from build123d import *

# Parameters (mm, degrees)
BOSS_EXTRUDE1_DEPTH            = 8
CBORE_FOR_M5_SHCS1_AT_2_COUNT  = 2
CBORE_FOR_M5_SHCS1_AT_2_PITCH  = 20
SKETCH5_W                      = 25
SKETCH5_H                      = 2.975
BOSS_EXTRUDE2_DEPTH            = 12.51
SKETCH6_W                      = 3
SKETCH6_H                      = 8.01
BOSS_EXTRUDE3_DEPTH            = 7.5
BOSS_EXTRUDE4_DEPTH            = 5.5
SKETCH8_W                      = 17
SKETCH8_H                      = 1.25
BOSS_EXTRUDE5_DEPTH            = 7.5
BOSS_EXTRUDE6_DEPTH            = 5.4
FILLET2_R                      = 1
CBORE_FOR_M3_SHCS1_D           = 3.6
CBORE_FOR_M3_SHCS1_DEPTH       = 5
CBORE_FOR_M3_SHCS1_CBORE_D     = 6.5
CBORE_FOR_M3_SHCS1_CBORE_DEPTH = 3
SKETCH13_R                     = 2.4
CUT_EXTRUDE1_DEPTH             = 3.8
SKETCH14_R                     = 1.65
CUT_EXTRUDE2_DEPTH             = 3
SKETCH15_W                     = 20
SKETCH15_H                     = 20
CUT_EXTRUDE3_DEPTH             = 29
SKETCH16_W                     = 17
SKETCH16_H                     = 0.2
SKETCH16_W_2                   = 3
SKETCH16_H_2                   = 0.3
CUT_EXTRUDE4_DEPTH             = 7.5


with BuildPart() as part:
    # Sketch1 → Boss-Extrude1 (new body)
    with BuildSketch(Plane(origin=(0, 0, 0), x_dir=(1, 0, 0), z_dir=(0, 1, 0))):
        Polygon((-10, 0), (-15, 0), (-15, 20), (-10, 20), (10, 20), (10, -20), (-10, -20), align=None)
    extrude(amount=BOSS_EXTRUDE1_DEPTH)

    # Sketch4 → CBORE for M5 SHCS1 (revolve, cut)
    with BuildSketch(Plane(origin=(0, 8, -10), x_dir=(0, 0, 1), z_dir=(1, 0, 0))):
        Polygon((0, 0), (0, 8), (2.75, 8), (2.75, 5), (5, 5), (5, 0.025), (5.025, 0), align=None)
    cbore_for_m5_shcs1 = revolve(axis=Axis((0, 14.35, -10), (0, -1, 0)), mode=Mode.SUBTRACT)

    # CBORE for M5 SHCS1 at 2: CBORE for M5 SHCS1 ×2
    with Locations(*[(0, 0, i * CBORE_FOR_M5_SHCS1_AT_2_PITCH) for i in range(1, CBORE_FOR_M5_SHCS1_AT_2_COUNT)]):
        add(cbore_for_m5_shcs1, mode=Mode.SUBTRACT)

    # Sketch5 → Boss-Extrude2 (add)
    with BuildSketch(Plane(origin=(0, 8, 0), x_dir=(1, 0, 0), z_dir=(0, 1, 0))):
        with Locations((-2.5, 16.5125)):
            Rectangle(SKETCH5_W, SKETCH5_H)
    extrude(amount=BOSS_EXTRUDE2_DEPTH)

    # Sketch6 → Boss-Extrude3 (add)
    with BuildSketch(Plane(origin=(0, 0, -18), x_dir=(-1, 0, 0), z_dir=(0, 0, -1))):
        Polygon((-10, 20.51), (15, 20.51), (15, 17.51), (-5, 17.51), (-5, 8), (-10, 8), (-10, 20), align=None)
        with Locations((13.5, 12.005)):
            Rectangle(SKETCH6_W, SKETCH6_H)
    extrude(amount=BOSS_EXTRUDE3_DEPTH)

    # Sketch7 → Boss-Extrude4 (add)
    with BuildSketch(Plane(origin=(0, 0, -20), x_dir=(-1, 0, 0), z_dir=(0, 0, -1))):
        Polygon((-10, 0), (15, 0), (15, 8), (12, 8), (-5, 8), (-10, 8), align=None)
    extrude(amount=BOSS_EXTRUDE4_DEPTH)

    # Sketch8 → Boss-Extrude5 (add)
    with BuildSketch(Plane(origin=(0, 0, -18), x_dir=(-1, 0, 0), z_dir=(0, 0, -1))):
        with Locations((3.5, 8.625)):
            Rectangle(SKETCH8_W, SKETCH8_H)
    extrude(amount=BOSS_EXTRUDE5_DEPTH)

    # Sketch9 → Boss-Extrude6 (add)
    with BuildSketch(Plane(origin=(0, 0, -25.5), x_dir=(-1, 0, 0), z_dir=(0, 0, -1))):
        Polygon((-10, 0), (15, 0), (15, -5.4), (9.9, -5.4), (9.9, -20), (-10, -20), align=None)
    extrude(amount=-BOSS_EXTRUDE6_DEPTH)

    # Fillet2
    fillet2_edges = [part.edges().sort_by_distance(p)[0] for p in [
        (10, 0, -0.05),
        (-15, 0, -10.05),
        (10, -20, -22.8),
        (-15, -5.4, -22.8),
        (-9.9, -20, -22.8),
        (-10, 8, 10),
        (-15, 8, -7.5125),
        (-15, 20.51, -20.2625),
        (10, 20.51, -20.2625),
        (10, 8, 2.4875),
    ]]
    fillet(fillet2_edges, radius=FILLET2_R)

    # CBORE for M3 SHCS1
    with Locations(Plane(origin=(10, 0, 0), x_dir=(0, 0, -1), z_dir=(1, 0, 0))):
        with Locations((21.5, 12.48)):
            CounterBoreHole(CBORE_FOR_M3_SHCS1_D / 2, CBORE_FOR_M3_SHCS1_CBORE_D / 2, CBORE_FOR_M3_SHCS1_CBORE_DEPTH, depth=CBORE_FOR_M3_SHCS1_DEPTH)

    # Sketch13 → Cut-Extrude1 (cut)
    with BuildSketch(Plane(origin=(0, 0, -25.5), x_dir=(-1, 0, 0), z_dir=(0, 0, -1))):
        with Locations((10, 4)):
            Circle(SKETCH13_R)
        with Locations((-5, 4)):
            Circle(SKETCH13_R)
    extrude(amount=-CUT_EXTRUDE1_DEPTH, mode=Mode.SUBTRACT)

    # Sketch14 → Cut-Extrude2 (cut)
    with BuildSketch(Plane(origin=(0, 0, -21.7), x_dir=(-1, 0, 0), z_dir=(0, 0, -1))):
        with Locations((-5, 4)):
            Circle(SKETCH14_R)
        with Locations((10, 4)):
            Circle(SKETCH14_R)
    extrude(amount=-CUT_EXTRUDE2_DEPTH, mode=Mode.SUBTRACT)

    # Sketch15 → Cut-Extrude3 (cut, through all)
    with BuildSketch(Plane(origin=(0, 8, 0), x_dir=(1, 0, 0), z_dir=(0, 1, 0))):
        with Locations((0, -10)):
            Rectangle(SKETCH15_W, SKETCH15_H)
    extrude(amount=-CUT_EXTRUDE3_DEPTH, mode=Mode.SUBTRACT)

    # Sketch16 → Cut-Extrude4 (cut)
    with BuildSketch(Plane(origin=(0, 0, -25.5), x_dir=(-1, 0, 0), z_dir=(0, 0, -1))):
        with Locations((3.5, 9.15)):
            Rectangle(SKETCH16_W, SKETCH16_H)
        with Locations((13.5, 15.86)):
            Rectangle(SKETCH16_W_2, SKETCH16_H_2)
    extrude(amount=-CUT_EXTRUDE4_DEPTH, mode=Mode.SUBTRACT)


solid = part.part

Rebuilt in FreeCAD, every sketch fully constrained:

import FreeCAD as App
import Part
import Sketcher
Q = App.Units.Quantity


def edges_at(feature, points):
    """Names of the edges that pass closest to the given points."""
    edges = feature.Shape.Edges
    near = lambda p: min(range(len(edges)), key=lambda i: edges[i].distToShape(Part.Vertex(*p))[0])
    return sorted({f"Edge{near(p) + 1}" for p in points})

doc = App.newDocument("Part")
body = doc.addObject("PartDesign::Body", "Body")

# Sketch on XZ plane
sketch1 = body.newObject("Sketcher::SketchObject", "Sketch")
sketch1.AttachmentSupport = (doc.getObject("XZ_Plane"), [""])
sketch1.MapMode = "FlatFace"
sketch1.addGeometry([
    Part.LineSegment(App.Vector(-15, 0, 0), App.Vector(-10, 0, 0)),  # 0
    Part.LineSegment(App.Vector(-10, 0, 0), App.Vector(-10, 20, 0)),  # 1
    Part.LineSegment(App.Vector(-10, 20, 0), App.Vector(10, 20, 0)),  # 2
    Part.LineSegment(App.Vector(10, 20, 0), App.Vector(10, -20, 0)),  # 3
    Part.LineSegment(App.Vector(10, -20, 0), App.Vector(-15, -20, 0)),  # 4
    Part.LineSegment(App.Vector(-15, -20, 0), App.Vector(-15, 0, 0)),  # 5
], False)
sketch1.addConstraint([
    Sketcher.Constraint("Coincident", 0, 2, 1, 1),
    Sketcher.Constraint("Coincident", 1, 2, 2, 1),
    Sketcher.Constraint("Coincident", 2, 2, 3, 1),
    Sketcher.Constraint("Coincident", 3, 2, 4, 1),
    Sketcher.Constraint("Coincident", 4, 2, 5, 1),
    Sketcher.Constraint("Coincident", 5, 2, 0, 1),
    Sketcher.Constraint("Horizontal", 0),
    Sketcher.Constraint("Vertical", 1),
    Sketcher.Constraint("Horizontal", 2),
    Sketcher.Constraint("Vertical", 3),
    Sketcher.Constraint("Horizontal", 4),
    Sketcher.Constraint("Vertical", 5),
    Sketcher.Constraint("Symmetric", 1, 2, 3, 2, -1, 1),
    Sketcher.Constraint("PointOnObject", 0, 2, -1),
    Sketcher.Constraint("Equal", 2, 1),
    Sketcher.Constraint("DistanceX", 0, 1, 0, 2, Q("5 mm")),
    Sketcher.Constraint("DistanceX", 2, 1, 2, 2, Q("20 mm")),
])
pad1 = body.newObject("PartDesign::Pad", "Pad")
pad1.Profile = sketch1
pad1.Length = 8
pad1.Reversed = True

# Sketch on YZ plane
sketch2 = body.newObject("Sketcher::SketchObject", "Sketch001")
sketch2.AttachmentSupport = (doc.getObject("YZ_Plane"), [""])
sketch2.MapMode = "FlatFace"
sketch2.addGeometry([
    Part.LineSegment(App.Vector(0, -10, 0), App.Vector(8, -10, 0)),  # 0
    Part.LineSegment(App.Vector(8, -10, 0), App.Vector(8, -4.975, 0)),  # 1
    Part.LineSegment(App.Vector(8, -4.975, 0), App.Vector(7.975, -5, 0)),  # 2
    Part.LineSegment(App.Vector(7.975, -5, 0), App.Vector(3, -5, 0)),  # 3
    Part.LineSegment(App.Vector(3, -5, 0), App.Vector(3, -7.25, 0)),  # 4
    Part.LineSegment(App.Vector(3, -7.25, 0), App.Vector(0, -7.25, 0)),  # 5
    Part.LineSegment(App.Vector(0, -7.25, 0), App.Vector(0, -10, 0)),  # 6
], False)
sketch2.addGeometry(Part.LineSegment(App.Vector(8, -10, 0), App.Vector(0, -10, 0)), True)  # axis
sketch2.addConstraint([
    Sketcher.Constraint("Coincident", 0, 2, 1, 1),
    Sketcher.Constraint("Coincident", 1, 2, 2, 1),
    Sketcher.Constraint("Coincident", 2, 2, 3, 1),
    Sketcher.Constraint("Coincident", 3, 2, 4, 1),
    Sketcher.Constraint("Coincident", 4, 2, 5, 1),
    Sketcher.Constraint("Coincident", 5, 2, 6, 1),
    Sketcher.Constraint("Coincident", 6, 2, 0, 1),
    Sketcher.Constraint("Horizontal", 0),
    Sketcher.Constraint("Vertical", 1),
    Sketcher.Constraint("Horizontal", 3),
    Sketcher.Constraint("Vertical", 4),
    Sketcher.Constraint("Horizontal", 5),
    Sketcher.Constraint("Vertical", 6),
    Sketcher.Constraint("Horizontal", 7),
    Sketcher.Constraint("Coincident", 7, 1, 0, 2),
    Sketcher.Constraint("PointOnObject", 5, 2, -2),
    Sketcher.Constraint("PointOnObject", 7, 2, -2),
    Sketcher.Constraint("DistanceX", 0, 1, 0, 2, Q("8 mm")),
    Sketcher.Constraint("DistanceX", 5, 2, 5, 1, Q("3 mm")),
    Sketcher.Constraint("Angle", 2, Q("-135 deg")),
    Sketcher.Constraint("DistanceY", 0, 2, -1, 1, Q("10 mm")),
    Sketcher.Constraint("DistanceY", 2, 2, -1, 1, Q("5 mm")),
    Sketcher.Constraint("DistanceY", 4, 2, 4, 1, Q("2.25 mm")),
    Sketcher.Constraint("DistanceX", 3, 2, 3, 1, Q("4.975 mm")),
])
groove = body.newObject("PartDesign::Groove", "Groove")
groove.Profile = sketch2
groove.ReferenceAxis = (sketch2, ["Axis0"])
groove.Angle = 360
doc.recompute()

linearpattern = body.newObject("PartDesign::LinearPattern", "LinearPattern")
linearpattern.Originals = [groove]
linearpattern.Direction = (doc.getObject("Z_Axis"), [""])
linearpattern.Mode = "offset"
linearpattern.Offset = 20
linearpattern.Occurrences = 2
body.Tip = linearpattern

# Sketch on XZ plane
sketch3 = body.newObject("Sketcher::SketchObject", "Sketch002")
sketch3.AttachmentSupport = (doc.getObject("XZ_Plane"), [""])
sketch3.MapMode = "FlatFace"
sketch3.AttachmentOffset = App.Placement(App.Vector(0, 0, -8), App.Rotation())
sketch3.addGeometry([
    Part.LineSegment(App.Vector(-15, -18, 0), App.Vector(-15, -15.025, 0)),
    Part.LineSegment(App.Vector(-15, -15.025, 0), App.Vector(10, -15.025, 0)),
    Part.LineSegment(App.Vector(10, -15.025, 0), App.Vector(10, -18, 0)),
    Part.LineSegment(App.Vector(10, -18, 0), App.Vector(-15, -18, 0)),
], False)
sketch3.addConstraint([
    Sketcher.Constraint("Coincident", 0, 2, 1, 1),
    Sketcher.Constraint("Coincident", 1, 2, 2, 1),
    Sketcher.Constraint("Coincident", 2, 2, 3, 1),
    Sketcher.Constraint("Coincident", 3, 2, 0, 1),
    Sketcher.Constraint("Vertical", 0),
    Sketcher.Constraint("Horizontal", 1),
    Sketcher.Constraint("Vertical", 2),
    Sketcher.Constraint("Horizontal", 3),
    Sketcher.Constraint("DistanceX", 1, 1, 1, 2, Q("25 mm")),
    Sketcher.Constraint("DistanceX", 0, 2, -1, 1, Q("15 mm")),
    Sketcher.Constraint("DistanceY", 2, 2, -1, 1, Q("18 mm")),
    Sketcher.Constraint("DistanceY", 0, 1, 0, 2, Q("2.975 mm")),
])
pad2 = body.newObject("PartDesign::Pad", "Pad001")
pad2.Profile = sketch3
pad2.Length = 12.51
pad2.Reversed = True

# Sketch on XY plane
sketch4 = body.newObject("Sketcher::SketchObject", "Sketch003")
sketch4.AttachmentSupport = (doc.getObject("XY_Plane"), [""])
sketch4.MapMode = "FlatFace"
sketch4.AttachmentOffset = App.Placement(App.Vector(0, 0, -18), App.Rotation())
sketch4.addGeometry([
    Part.LineSegment(App.Vector(-15, 20.51, 0), App.Vector(10, 20.51, 0)),  # 0
    Part.LineSegment(App.Vector(10, 20.51, 0), App.Vector(10, 8, 0)),  # 1
    Part.LineSegment(App.Vector(10, 8, 0), App.Vector(5, 8, 0)),  # 2
    Part.LineSegment(App.Vector(5, 8, 0), App.Vector(5, 17.51, 0)),  # 3
    Part.LineSegment(App.Vector(5, 17.51, 0), App.Vector(-15, 17.51, 0)),  # 4
    Part.LineSegment(App.Vector(-15, 17.51, 0), App.Vector(-15, 20.51, 0)),  # 5
    Part.LineSegment(App.Vector(-12, 16.01, 0), App.Vector(-12, 8, 0)),  # 6
    Part.LineSegment(App.Vector(-12, 8, 0), App.Vector(-15, 8, 0)),  # 7
    Part.LineSegment(App.Vector(-15, 8, 0), App.Vector(-15, 16.01, 0)),  # 8
    Part.LineSegment(App.Vector(-15, 16.01, 0), App.Vector(-12, 16.01, 0)),  # 9
], False)
sketch4.addConstraint([
    Sketcher.Constraint("Coincident", 0, 2, 1, 1),
    Sketcher.Constraint("Coincident", 1, 2, 2, 1),
    Sketcher.Constraint("Coincident", 2, 2, 3, 1),
    Sketcher.Constraint("Coincident", 3, 2, 4, 1),
    Sketcher.Constraint("Coincident", 4, 2, 5, 1),
    Sketcher.Constraint("Coincident", 5, 2, 0, 1),
    Sketcher.Constraint("Coincident", 6, 2, 7, 1),
    Sketcher.Constraint("Coincident", 7, 2, 8, 1),
    Sketcher.Constraint("Coincident", 8, 2, 9, 1),
    Sketcher.Constraint("Coincident", 9, 2, 6, 1),
    Sketcher.Constraint("Horizontal", 0),
    Sketcher.Constraint("Vertical", 1),
    Sketcher.Constraint("Horizontal", 2),
    Sketcher.Constraint("Vertical", 3),
    Sketcher.Constraint("Horizontal", 4),
    Sketcher.Constraint("Vertical", 5),
    Sketcher.Constraint("Vertical", 6),
    Sketcher.Constraint("Horizontal", 7),
    Sketcher.Constraint("Vertical", 8),
    Sketcher.Constraint("Horizontal", 9),
    Sketcher.Constraint("Horizontal", 2, 2, 6, 2),
    Sketcher.Constraint("Vertical", 5, 2, 7, 2),
    Sketcher.Constraint("Equal", 9, 5),
    Sketcher.Constraint("DistanceX", 0, 1, 0, 2, Q("25 mm")),
    Sketcher.Constraint("DistanceX", 2, 2, 2, 1, Q("5 mm")),
    Sketcher.Constraint("DistanceX", 7, 2, 7, 1, Q("3 mm")),
    Sketcher.Constraint("DistanceX", -1, 1, 0, 2, Q("10 mm")),
    Sketcher.Constraint("DistanceY", -1, 1, 1, 2, Q("8 mm")),
    Sketcher.Constraint("DistanceY", 1, 2, 1, 1, Q("12.51 mm")),
    Sketcher.Constraint("DistanceY", 6, 2, 6, 1, Q("8.01 mm")),
])
pad3 = body.newObject("PartDesign::Pad", "Pad002")
pad3.Profile = sketch4
pad3.Length = 7.5
pad3.Reversed = True

# Sketch on XY plane
sketch5 = body.newObject("Sketcher::SketchObject", "Sketch004")
sketch5.AttachmentSupport = (doc.getObject("XY_Plane"), [""])
sketch5.MapMode = "FlatFace"
sketch5.AttachmentOffset = App.Placement(App.Vector(0, 0, -20), App.Rotation())
sketch5.addGeometry([
    Part.LineSegment(App.Vector(10, 0, 0), App.Vector(-15, 0, 0)),
    Part.LineSegment(App.Vector(-15, 0, 0), App.Vector(-15, 8, 0)),
    Part.LineSegment(App.Vector(-15, 8, 0), App.Vector(10, 8, 0)),
    Part.LineSegment(App.Vector(10, 8, 0), App.Vector(10, 0, 0)),
], False)
sketch5.addConstraint([
    Sketcher.Constraint("Coincident", 0, 2, 1, 1),
    Sketcher.Constraint("Coincident", 1, 2, 2, 1),
    Sketcher.Constraint("Coincident", 2, 2, 3, 1),
    Sketcher.Constraint("Coincident", 3, 2, 0, 1),
    Sketcher.Constraint("Horizontal", 0),
    Sketcher.Constraint("Vertical", 1),
    Sketcher.Constraint("Horizontal", 2),
    Sketcher.Constraint("Vertical", 3),
    Sketcher.Constraint("PointOnObject", 0, 2, -1),
    Sketcher.Constraint("DistanceX", 0, 2, 0, 1, Q("25 mm")),
    Sketcher.Constraint("DistanceY", 1, 1, 1, 2, Q("8 mm")),
    Sketcher.Constraint("DistanceX", 0, 2, -1, 1, Q("15 mm")),
])
pad4 = body.newObject("PartDesign::Pad", "Pad003")
pad4.Profile = sketch5
pad4.Length = 5.5
pad4.Reversed = True

# Sketch on XY plane
sketch6 = body.newObject("Sketcher::SketchObject", "Sketch005")
sketch6.AttachmentSupport = (doc.getObject("XY_Plane"), [""])
sketch6.MapMode = "FlatFace"
sketch6.AttachmentOffset = App.Placement(App.Vector(0, 0, -18), App.Rotation())
sketch6.addGeometry([
    Part.LineSegment(App.Vector(5, 9.25, 0), App.Vector(5, 8, 0)),
    Part.LineSegment(App.Vector(5, 8, 0), App.Vector(-12, 8, 0)),
    Part.LineSegment(App.Vector(-12, 8, 0), App.Vector(-12, 9.25, 0)),
    Part.LineSegment(App.Vector(-12, 9.25, 0), App.Vector(5, 9.25, 0)),
], False)
sketch6.addConstraint([
    Sketcher.Constraint("Coincident", 0, 2, 1, 1),
    Sketcher.Constraint("Coincident", 1, 2, 2, 1),
    Sketcher.Constraint("Coincident", 2, 2, 3, 1),
    Sketcher.Constraint("Coincident", 3, 2, 0, 1),
    Sketcher.Constraint("Vertical", 0),
    Sketcher.Constraint("Horizontal", 1),
    Sketcher.Constraint("Vertical", 2),
    Sketcher.Constraint("Horizontal", 3),
    Sketcher.Constraint("DistanceX", 1, 2, 1, 1, Q("17 mm")),
    Sketcher.Constraint("DistanceX", -1, 1, 0, 2, Q("5 mm")),
    Sketcher.Constraint("DistanceY", -1, 1, 0, 2, Q("8 mm")),
    Sketcher.Constraint("DistanceY", 0, 2, 0, 1, Q("1.25 mm")),
])
pad5 = body.newObject("PartDesign::Pad", "Pad004")
pad5.Profile = sketch6
pad5.Length = 7.5
pad5.Reversed = True

# Sketch on XY plane
sketch7 = body.newObject("Sketcher::SketchObject", "Sketch006")
sketch7.AttachmentSupport = (doc.getObject("XY_Plane"), [""])
sketch7.MapMode = "FlatFace"
sketch7.AttachmentOffset = App.Placement(App.Vector(0, 0, -25.5), App.Rotation())
sketch7.addGeometry([
    Part.LineSegment(App.Vector(-15, 0, 0), App.Vector(10, 0, 0)),  # 0
    Part.LineSegment(App.Vector(10, 0, 0), App.Vector(10, -20, 0)),  # 1
    Part.LineSegment(App.Vector(10, -20, 0), App.Vector(-9.9, -20, 0)),  # 2
    Part.LineSegment(App.Vector(-9.9, -20, 0), App.Vector(-9.9, -5.4, 0)),  # 3
    Part.LineSegment(App.Vector(-9.9, -5.4, 0), App.Vector(-15, -5.4, 0)),  # 4
    Part.LineSegment(App.Vector(-15, -5.4, 0), App.Vector(-15, 0, 0)),  # 5
], False)
sketch7.addConstraint([
    Sketcher.Constraint("Coincident", 0, 2, 1, 1),
    Sketcher.Constraint("Coincident", 1, 2, 2, 1),
    Sketcher.Constraint("Coincident", 2, 2, 3, 1),
    Sketcher.Constraint("Coincident", 3, 2, 4, 1),
    Sketcher.Constraint("Coincident", 4, 2, 5, 1),
    Sketcher.Constraint("Coincident", 5, 2, 0, 1),
    Sketcher.Constraint("Horizontal", 0),
    Sketcher.Constraint("Vertical", 1),
    Sketcher.Constraint("Horizontal", 2),
    Sketcher.Constraint("Vertical", 3),
    Sketcher.Constraint("Horizontal", 4),
    Sketcher.Constraint("Vertical", 5),
    Sketcher.Constraint("PointOnObject", 0, 2, -1),
    Sketcher.Constraint("DistanceX", 0, 1, 0, 2, Q("25 mm")),
    Sketcher.Constraint("DistanceY", 1, 2, 1, 1, Q("20 mm")),
    Sketcher.Constraint("DistanceX", 2, 2, 2, 1, Q("19.9 mm")),
    Sketcher.Constraint("DistanceY", 3, 1, 3, 2, Q("14.6 mm")),
    Sketcher.Constraint("DistanceX", -1, 1, 0, 2, Q("10 mm")),
])
pad6 = body.newObject("PartDesign::Pad", "Pad005")
pad6.Profile = sketch7
pad6.Length = 5.4
doc.recompute()

fillet = body.newObject("PartDesign::Fillet", "Fillet")
fillet.Base = (pad6, edges_at(pad6, [
    (10, 0, -0.05),
    (-15, 0, -10.05),
    (10, -20, -22.8),
    (-15, -5.4, -22.8),
    (-9.9, -20, -22.8),
    (-10, 8, 10),
    (-15, 8, -7.513),
    (-15, 20.51, -20.262),
    (10, 20.51, -20.262),
    (10, 8, 2.487),
]))
fillet.Radius = 1

# Sketch on YZ plane
sketch8 = body.newObject("Sketcher::SketchObject", "Sketch007")
sketch8.AttachmentSupport = (doc.getObject("YZ_Plane"), [""])
sketch8.MapMode = "FlatFace"
sketch8.AttachmentOffset = App.Placement(App.Vector(0, 0, 10), App.Rotation())
sketch8.addGeometry(Part.Circle(App.Vector(12.48, -21.5, 0), App.Vector(0, 0, 1), 1.8), False)
sketch8.addConstraint([
    Sketcher.Constraint("Diameter", 0, Q("3.6 mm")),
    Sketcher.Constraint("DistanceY", 0, 3, -1, 1, Q("21.5 mm")),
    Sketcher.Constraint("DistanceX", -1, 1, 0, 3, Q("12.48 mm")),
])
doc.recompute()
hole = body.newObject("PartDesign::Hole", "Hole")
hole.Profile = sketch8
hole.ThreadType = "None"
hole.Diameter = 3.6
hole.DepthType = "Dimension"
hole.Depth = 5
hole.DrillPoint = "Flat"
hole.HoleCutType = "Counterbore"
hole.HoleCutDiameter = 6.5
hole.HoleCutDepth = 3

# Sketch on XY plane
sketch9 = body.newObject("Sketcher::SketchObject", "Sketch008")
sketch9.AttachmentSupport = (doc.getObject("XY_Plane"), [""])
sketch9.MapMode = "FlatFace"
sketch9.AttachmentOffset = App.Placement(App.Vector(0, 0, -25.5), App.Rotation())
sketch9.addGeometry([
    Part.Circle(App.Vector(-10, 4, 0), App.Vector(0, 0, 1), 2.4),
    Part.Circle(App.Vector(5, 4, 0), App.Vector(0, 0, 1), 2.4),
], False)
sketch9.addConstraint([
    Sketcher.Constraint("Equal", 0, 1),
    Sketcher.Constraint("Horizontal", 0, 3, 1, 3),
    Sketcher.Constraint("Diameter", 0, Q("4.8 mm")),
    Sketcher.Constraint("DistanceX", 0, 3, -1, 1, Q("10 mm")),
    Sketcher.Constraint("DistanceY", -1, 1, 0, 3, Q("4 mm")),
    Sketcher.Constraint("DistanceX", -1, 1, 1, 3, Q("5 mm")),
])
pocket1 = body.newObject("PartDesign::Pocket", "Pocket")
pocket1.Profile = sketch9
pocket1.Length = 3.8
pocket1.Reversed = True

# Sketch on XY plane
sketch10 = body.newObject("Sketcher::SketchObject", "Sketch009")
sketch10.AttachmentSupport = (doc.getObject("XY_Plane"), [""])
sketch10.MapMode = "FlatFace"
sketch10.AttachmentOffset = App.Placement(App.Vector(0, 0, -21.7), App.Rotation())
sketch10.addGeometry([
    Part.Circle(App.Vector(5, 4, 0), App.Vector(0, 0, 1), 1.65),
    Part.Circle(App.Vector(-10, 4, 0), App.Vector(0, 0, 1), 1.65),
], False)
sketch10.addConstraint([
    Sketcher.Constraint("Equal", 0, 1),
    Sketcher.Constraint("Horizontal", 0, 3, 1, 3),
    Sketcher.Constraint("Diameter", 0, Q("3.3 mm")),
    Sketcher.Constraint("DistanceX", -1, 1, 0, 3, Q("5 mm")),
    Sketcher.Constraint("DistanceY", -1, 1, 0, 3, Q("4 mm")),
    Sketcher.Constraint("DistanceX", 1, 3, -1, 1, Q("10 mm")),
])
pocket2 = body.newObject("PartDesign::Pocket", "Pocket001")
pocket2.Profile = sketch10
pocket2.Length = 3
pocket2.Reversed = True

# Sketch on XZ plane
sketch11 = body.newObject("Sketcher::SketchObject", "Sketch010")
sketch11.AttachmentSupport = (doc.getObject("XZ_Plane"), [""])
sketch11.MapMode = "FlatFace"
sketch11.AttachmentOffset = App.Placement(App.Vector(0, 0, -8), App.Rotation())
sketch11.addGeometry([
    Part.LineSegment(App.Vector(-10, 0, 0), App.Vector(-10, 20, 0)),
    Part.LineSegment(App.Vector(-10, 20, 0), App.Vector(10, 20, 0)),
    Part.LineSegment(App.Vector(10, 20, 0), App.Vector(10, 0, 0)),
    Part.LineSegment(App.Vector(10, 0, 0), App.Vector(-10, 0, 0)),
], False)
sketch11.addConstraint([
    Sketcher.Constraint("Coincident", 0, 2, 1, 1),
    Sketcher.Constraint("Coincident", 1, 2, 2, 1),
    Sketcher.Constraint("Coincident", 2, 2, 3, 1),
    Sketcher.Constraint("Coincident", 3, 2, 0, 1),
    Sketcher.Constraint("Vertical", 0),
    Sketcher.Constraint("Horizontal", 1),
    Sketcher.Constraint("Vertical", 2),
    Sketcher.Constraint("Horizontal", 3),
    Sketcher.Constraint("Symmetric", 2, 2, 3, 2, -1, 1),
    Sketcher.Constraint("Equal", 3, 0),
    Sketcher.Constraint("DistanceX", 1, 1, 1, 2, Q("20 mm")),
])
pocket3 = body.newObject("PartDesign::Pocket", "Pocket002")
pocket3.Profile = sketch11
pocket3.Type = "ThroughAll"
pocket3.Reversed = True

# Sketch on XY plane
sketch12 = body.newObject("Sketcher::SketchObject", "Sketch011")
sketch12.AttachmentSupport = (doc.getObject("XY_Plane"), [""])
sketch12.MapMode = "FlatFace"
sketch12.AttachmentOffset = App.Placement(App.Vector(0, 0, -25.5), App.Rotation())
sketch12.addGeometry([
    Part.LineSegment(App.Vector(5, 9.25, 0), App.Vector(5, 9.05, 0)),  # 0
    Part.LineSegment(App.Vector(5, 9.05, 0), App.Vector(-12, 9.05, 0)),  # 1
    Part.LineSegment(App.Vector(-12, 9.05, 0), App.Vector(-12, 9.25, 0)),  # 2
    Part.LineSegment(App.Vector(-12, 9.25, 0), App.Vector(5, 9.25, 0)),  # 3
    Part.LineSegment(App.Vector(-12, 16.01, 0), App.Vector(-12, 15.71, 0)),  # 4
    Part.LineSegment(App.Vector(-12, 15.71, 0), App.Vector(-15, 15.71, 0)),  # 5
    Part.LineSegment(App.Vector(-15, 15.71, 0), App.Vector(-15, 16.01, 0)),  # 6
    Part.LineSegment(App.Vector(-15, 16.01, 0), App.Vector(-12, 16.01, 0)),  # 7
], False)
sketch12.addConstraint([
    Sketcher.Constraint("Coincident", 0, 2, 1, 1),
    Sketcher.Constraint("Coincident", 1, 2, 2, 1),
    Sketcher.Constraint("Coincident", 2, 2, 3, 1),
    Sketcher.Constraint("Coincident", 3, 2, 0, 1),
    Sketcher.Constraint("Coincident", 4, 2, 5, 1),
    Sketcher.Constraint("Coincident", 5, 2, 6, 1),
    Sketcher.Constraint("Coincident", 6, 2, 7, 1),
    Sketcher.Constraint("Coincident", 7, 2, 4, 1),
    Sketcher.Constraint("Vertical", 0),
    Sketcher.Constraint("Horizontal", 1),
    Sketcher.Constraint("Vertical", 2),
    Sketcher.Constraint("Horizontal", 3),
    Sketcher.Constraint("Vertical", 4),
    Sketcher.Constraint("Horizontal", 5),
    Sketcher.Constraint("Vertical", 6),
    Sketcher.Constraint("Horizontal", 7),
    Sketcher.Constraint("Vertical", 2, 2, 4, 2),
    Sketcher.Constraint("DistanceX", 1, 2, 1, 1, Q("17 mm")),
    Sketcher.Constraint("DistanceX", 5, 2, 5, 1, Q("3 mm")),
    Sketcher.Constraint("DistanceY", 0, 2, 0, 1, Q("0.2 mm")),
    Sketcher.Constraint("DistanceY", 4, 2, 4, 1, Q("0.3 mm")),
    Sketcher.Constraint("DistanceX", -1, 1, 0, 2, Q("5 mm")),
    Sketcher.Constraint("DistanceY", -1, 1, 0, 2, Q("9.05 mm")),
    Sketcher.Constraint("DistanceY", -1, 1, 4, 2, Q("15.71 mm")),
])
pocket4 = body.newObject("PartDesign::Pocket", "Pocket003")
pocket4.Profile = sketch12
pocket4.Length = 7.5
pocket4.Reversed = True

doc.recompute()
